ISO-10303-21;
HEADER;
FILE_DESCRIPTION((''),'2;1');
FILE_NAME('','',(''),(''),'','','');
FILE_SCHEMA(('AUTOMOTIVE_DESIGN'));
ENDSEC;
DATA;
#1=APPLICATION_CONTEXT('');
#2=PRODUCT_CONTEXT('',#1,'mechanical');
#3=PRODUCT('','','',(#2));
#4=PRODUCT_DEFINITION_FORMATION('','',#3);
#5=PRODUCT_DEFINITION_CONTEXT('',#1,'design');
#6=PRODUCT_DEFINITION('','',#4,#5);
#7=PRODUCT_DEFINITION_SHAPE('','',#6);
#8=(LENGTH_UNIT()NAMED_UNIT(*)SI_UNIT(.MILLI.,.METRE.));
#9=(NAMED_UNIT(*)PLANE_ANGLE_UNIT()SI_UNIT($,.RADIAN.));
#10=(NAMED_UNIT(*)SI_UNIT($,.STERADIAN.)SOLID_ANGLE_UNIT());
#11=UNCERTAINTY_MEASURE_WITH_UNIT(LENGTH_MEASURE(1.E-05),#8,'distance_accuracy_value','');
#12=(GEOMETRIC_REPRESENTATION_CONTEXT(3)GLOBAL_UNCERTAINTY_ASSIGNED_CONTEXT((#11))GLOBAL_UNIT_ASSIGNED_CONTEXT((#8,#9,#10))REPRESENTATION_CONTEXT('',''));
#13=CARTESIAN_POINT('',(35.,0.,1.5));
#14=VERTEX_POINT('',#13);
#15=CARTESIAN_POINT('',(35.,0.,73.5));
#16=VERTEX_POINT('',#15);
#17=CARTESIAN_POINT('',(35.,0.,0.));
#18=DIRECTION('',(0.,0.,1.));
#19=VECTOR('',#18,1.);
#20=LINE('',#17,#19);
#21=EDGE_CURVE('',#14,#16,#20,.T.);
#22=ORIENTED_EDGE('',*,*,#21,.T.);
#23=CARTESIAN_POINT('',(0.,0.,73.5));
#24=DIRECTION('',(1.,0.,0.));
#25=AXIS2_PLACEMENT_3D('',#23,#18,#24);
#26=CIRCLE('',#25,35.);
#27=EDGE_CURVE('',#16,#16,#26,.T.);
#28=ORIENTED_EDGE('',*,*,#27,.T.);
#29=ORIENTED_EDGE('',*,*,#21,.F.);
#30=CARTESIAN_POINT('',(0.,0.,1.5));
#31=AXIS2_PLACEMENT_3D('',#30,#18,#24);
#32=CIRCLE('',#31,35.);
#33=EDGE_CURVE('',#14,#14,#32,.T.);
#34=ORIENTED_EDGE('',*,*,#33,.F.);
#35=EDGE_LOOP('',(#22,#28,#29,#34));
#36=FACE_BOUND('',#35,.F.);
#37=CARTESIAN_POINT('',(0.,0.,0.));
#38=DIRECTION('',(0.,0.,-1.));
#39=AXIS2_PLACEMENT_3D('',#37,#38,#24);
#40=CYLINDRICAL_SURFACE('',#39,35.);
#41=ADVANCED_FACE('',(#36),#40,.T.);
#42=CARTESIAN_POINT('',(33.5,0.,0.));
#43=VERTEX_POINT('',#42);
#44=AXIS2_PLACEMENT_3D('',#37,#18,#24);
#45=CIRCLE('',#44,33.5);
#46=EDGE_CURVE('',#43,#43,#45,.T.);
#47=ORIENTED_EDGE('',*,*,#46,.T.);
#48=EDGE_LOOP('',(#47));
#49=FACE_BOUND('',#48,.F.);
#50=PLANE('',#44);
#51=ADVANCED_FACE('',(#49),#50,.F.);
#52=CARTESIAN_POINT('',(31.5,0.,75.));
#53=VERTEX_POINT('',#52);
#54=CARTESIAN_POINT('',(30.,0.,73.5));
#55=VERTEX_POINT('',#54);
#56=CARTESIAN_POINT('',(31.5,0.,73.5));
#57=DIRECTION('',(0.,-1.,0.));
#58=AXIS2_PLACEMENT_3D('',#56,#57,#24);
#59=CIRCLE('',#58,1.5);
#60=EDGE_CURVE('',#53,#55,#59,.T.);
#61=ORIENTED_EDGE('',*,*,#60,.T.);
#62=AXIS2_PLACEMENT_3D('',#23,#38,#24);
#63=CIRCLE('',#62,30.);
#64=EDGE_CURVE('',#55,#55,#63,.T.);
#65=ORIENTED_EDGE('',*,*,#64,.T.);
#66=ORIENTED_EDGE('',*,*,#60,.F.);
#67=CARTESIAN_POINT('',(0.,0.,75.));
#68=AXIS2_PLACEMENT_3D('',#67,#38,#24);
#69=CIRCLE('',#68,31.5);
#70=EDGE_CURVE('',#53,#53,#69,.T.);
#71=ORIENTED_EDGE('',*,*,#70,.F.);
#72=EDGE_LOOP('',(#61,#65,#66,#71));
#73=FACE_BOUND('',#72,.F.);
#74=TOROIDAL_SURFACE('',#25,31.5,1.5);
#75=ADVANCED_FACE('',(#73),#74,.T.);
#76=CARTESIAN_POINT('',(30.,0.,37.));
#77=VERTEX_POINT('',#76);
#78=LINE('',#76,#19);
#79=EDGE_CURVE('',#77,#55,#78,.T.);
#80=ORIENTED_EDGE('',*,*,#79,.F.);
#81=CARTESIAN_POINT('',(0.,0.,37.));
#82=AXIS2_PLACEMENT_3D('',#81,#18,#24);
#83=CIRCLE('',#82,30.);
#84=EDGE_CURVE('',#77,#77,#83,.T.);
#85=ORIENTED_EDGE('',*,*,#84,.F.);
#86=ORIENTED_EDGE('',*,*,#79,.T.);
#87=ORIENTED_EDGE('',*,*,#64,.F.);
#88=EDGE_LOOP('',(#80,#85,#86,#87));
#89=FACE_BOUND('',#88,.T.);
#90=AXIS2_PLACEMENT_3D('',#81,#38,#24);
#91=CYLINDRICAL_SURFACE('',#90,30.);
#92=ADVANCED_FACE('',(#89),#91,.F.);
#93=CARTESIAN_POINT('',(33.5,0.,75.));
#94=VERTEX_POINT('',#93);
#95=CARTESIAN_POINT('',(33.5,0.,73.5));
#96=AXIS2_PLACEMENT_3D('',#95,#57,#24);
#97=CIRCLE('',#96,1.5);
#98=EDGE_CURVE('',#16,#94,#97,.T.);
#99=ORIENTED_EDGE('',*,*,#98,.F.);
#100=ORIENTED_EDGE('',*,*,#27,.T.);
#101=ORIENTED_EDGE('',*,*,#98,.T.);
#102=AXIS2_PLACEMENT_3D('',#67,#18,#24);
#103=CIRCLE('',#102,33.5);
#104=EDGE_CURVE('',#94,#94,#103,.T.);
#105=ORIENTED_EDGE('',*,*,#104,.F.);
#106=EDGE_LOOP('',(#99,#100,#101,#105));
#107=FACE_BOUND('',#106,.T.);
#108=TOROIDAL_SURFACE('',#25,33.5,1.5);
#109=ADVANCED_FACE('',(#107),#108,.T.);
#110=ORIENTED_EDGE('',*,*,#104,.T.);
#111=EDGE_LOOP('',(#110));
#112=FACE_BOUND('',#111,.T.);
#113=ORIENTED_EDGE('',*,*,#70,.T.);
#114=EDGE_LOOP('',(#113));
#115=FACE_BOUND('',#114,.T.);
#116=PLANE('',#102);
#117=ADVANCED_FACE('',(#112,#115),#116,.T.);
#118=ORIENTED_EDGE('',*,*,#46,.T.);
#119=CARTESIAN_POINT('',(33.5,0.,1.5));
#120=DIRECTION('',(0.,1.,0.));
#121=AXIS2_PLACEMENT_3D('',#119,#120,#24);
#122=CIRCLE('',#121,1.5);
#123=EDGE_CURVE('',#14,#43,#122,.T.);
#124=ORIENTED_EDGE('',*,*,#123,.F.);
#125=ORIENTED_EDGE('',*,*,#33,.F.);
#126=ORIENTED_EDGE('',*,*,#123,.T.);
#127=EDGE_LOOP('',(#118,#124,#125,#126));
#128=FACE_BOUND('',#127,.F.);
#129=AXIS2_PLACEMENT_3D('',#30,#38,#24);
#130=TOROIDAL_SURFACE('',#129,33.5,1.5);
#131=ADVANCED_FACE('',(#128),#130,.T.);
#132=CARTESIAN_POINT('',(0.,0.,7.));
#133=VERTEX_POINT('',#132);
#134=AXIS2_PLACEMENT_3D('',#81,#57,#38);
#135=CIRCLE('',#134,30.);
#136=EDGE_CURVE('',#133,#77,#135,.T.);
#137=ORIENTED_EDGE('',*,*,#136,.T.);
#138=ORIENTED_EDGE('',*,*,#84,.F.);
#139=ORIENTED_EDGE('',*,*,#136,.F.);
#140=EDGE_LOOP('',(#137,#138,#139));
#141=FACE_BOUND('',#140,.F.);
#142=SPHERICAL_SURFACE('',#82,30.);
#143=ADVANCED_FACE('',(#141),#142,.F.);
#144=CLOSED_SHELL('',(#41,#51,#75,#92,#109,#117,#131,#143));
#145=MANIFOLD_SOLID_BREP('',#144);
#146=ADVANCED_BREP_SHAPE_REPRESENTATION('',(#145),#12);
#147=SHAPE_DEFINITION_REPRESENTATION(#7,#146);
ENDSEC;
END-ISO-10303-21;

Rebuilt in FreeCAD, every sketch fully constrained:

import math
import FreeCAD as App
import Part
import Sketcher
from FreeCAD import Vector
Q = App.Units.Quantity


def edges_at(feature, points):
    """Names of the edges that pass closest to the given points."""
    edges = feature.Shape.Edges
    near = lambda p: min(range(len(edges)), key=lambda i: edges[i].distToShape(Part.Vertex(*p))[0])
    return sorted({f"Edge{near(p) + 1}" for p in points})

doc = App.newDocument("Part")
body = doc.addObject("PartDesign::Body", "Body")

sketch1 = body.newObject("Sketcher::SketchObject", "Sketch")
sketch1.AttachmentSupport = (doc.getObject("XY_Plane"), [""])
sketch1.MapMode = "FlatFace"
sketch1.AttachmentOffset = App.Placement(Vector(0, 0, 37), App.Rotation())
sketch1.addGeometry(Part.Circle(Vector(0, 0, 0), Vector(0, 0, 1), 30), False)
sketch1.addConstraint([
    Sketcher.Constraint("Coincident", 0, 3, -1, 1),
    Sketcher.Constraint("Diameter", 0, Q("60 mm")),
])
pad1 = body.newObject("PartDesign::Pad", "Pad")
pad1.Profile = sketch1
pad1.Length = 75
body2 = doc.addObject("PartDesign::Body", "Body001")

sketch2 = body2.newObject("Sketcher::SketchObject", "Sketch001")
sketch2.AttachmentSupport = (doc.getObject("XZ_Plane001"), [""])
sketch2.MapMode = "FlatFace"
sketch2.addGeometry([
    Part.ArcOfCircle(Part.Circle(Vector(0, 37, 0), Vector(0, 0, 1), 30), math.radians(-90), math.radians(90)),
    Part.LineSegment(Vector(0, 67, 0), Vector(0, 7, 0)),
], False)
sketch2.addConstraint([
    Sketcher.Constraint("Coincident", 0, 1, 1, 2),
    Sketcher.Constraint("Coincident", 1, 1, 0, 2),
    Sketcher.Constraint("Vertical", 1),
    Sketcher.Constraint("PointOnObject", 0, 3, -2),
    Sketcher.Constraint("PointOnObject", 0, 1, -2),
    Sketcher.Constraint("Radius", 0, Q("30 mm")),
    Sketcher.Constraint("DistanceY", -1, 1, 0, 3, Q("37 mm")),
])
revolution = body2.newObject("PartDesign::Revolution", "Revolution")
revolution.Profile = sketch2
revolution.ReferenceAxis = (sketch2, ["V_Axis"])
revolution.Angle = 360
doc.recompute()

boolean = body2.newObject("PartDesign::Boolean", "Boolean")
boolean.Type = "Fuse"
boolean.addObjects([body])
body3 = doc.addObject("PartDesign::Body", "Body002")

sketch3 = body3.newObject("Sketcher::SketchObject", "Sketch002")
sketch3.AttachmentSupport = (doc.getObject("XY_Plane002"), [""])
sketch3.MapMode = "FlatFace"
sketch3.addGeometry(Part.Circle(Vector(0, 0, 0), Vector(0, 0, 1), 35), False)
sketch3.addConstraint([
    Sketcher.Constraint("Coincident", 0, 3, -1, 1),
    Sketcher.Constraint("Diameter", 0, Q("70 mm")),
])
pad2 = body3.newObject("PartDesign::Pad", "Pad001")
pad2.Profile = sketch3
pad2.Length = 75
doc.recompute()

boolean2 = body3.newObject("PartDesign::Boolean", "Boolean001")
boolean2.Type = "Cut"
boolean2.addObjects([body2])
doc.recompute()

fillet = body3.newObject("PartDesign::Fillet", "Fillet")
fillet.Base = (boolean2, edges_at(boolean2, [(-35, 0, 0), (-35, 0, 75), (-30, 0, 75)]))
fillet.Radius = 1.5

doc.recompute()
